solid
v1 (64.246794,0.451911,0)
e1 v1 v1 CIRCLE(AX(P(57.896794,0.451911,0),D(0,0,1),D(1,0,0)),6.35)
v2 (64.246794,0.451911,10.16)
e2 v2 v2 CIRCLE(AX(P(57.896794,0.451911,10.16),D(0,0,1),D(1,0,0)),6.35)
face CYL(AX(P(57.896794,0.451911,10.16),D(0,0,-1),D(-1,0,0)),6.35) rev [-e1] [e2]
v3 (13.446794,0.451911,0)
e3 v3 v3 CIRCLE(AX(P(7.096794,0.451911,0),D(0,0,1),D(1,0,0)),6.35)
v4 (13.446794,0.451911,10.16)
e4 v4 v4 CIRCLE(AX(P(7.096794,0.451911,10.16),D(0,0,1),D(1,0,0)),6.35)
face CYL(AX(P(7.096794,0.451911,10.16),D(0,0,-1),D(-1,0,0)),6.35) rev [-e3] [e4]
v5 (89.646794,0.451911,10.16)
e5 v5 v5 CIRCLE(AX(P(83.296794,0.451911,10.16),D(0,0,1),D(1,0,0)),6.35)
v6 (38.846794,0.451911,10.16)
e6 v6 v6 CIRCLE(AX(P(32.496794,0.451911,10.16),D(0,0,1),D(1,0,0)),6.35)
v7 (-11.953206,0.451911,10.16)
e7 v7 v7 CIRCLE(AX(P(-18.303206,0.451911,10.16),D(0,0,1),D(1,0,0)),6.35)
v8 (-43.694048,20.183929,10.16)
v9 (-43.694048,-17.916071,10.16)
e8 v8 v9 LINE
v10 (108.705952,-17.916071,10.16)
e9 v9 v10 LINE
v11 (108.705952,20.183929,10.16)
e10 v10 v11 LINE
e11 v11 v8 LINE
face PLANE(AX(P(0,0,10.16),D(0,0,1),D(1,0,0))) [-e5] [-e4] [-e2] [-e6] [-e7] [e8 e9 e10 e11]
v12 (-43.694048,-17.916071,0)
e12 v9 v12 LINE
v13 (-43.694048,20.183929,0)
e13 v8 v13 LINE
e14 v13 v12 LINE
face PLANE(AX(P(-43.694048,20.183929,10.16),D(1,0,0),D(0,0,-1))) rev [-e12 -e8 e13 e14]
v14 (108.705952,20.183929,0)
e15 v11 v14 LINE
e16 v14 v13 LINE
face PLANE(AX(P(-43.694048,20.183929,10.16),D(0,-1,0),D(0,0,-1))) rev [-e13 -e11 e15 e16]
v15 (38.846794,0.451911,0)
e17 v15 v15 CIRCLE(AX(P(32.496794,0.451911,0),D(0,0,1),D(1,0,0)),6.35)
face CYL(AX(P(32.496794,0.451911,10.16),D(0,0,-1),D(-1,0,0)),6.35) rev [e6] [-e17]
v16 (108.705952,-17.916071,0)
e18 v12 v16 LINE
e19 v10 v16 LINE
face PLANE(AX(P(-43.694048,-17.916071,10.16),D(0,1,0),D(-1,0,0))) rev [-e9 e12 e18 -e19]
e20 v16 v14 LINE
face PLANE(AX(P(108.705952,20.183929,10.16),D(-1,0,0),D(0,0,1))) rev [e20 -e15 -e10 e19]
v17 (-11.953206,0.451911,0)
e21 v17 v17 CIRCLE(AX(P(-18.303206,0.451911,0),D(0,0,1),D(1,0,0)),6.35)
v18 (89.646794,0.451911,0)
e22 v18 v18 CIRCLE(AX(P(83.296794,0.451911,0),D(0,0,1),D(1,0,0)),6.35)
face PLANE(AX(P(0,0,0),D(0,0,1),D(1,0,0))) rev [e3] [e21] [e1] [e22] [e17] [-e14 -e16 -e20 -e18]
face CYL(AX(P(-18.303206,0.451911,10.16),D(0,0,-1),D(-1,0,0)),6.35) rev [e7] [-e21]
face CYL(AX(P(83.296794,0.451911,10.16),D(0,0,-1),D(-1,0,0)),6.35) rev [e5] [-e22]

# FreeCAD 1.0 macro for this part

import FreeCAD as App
import Part
import Sketcher
from FreeCAD import Vector
Q = App.Units.Quantity


def add_polygon(sketch, points):
    """Adds a closed chain of lines whose ends are joined by coincident constraints."""
    first, n = sketch.GeometryCount, len(points)
    for a, b in zip(points, points[1:] + points[:1]):
        sketch.addGeometry(Part.LineSegment(App.Vector(*a, 0), App.Vector(*b, 0)), False)
    for i in range(n):
        sketch.addConstraint(Sketcher.Constraint("Coincident", first + i, 2, first + (i + 1) % n, 1))

doc = App.newDocument("Part")
body = doc.addObject("PartDesign::Body", "Body")

# Sketch on XY plane
sketch1 = body.newObject("Sketcher::SketchObject", "Sketch")
sketch1.AttachmentSupport = (doc.getObject("XY_Plane"), [""])
sketch1.MapMode = "FlatFace"
add_polygon(sketch1, [(-44, 20), (-44, -18), (109, -18), (109, 20)])  # lines 0-3
sketch1.addGeometry(Part.Circle(Vector(-18, 0, 0), Vector(0, 0, 1), 6), False)  # 4
sketch1.addGeometry(Part.Circle(Vector(7, 0, 0), Vector(0, 0, 1), 6), False)  # 5
sketch1.addGeometry(Part.Circle(Vector(32, 0, 0), Vector(0, 0, 1), 6), False)  # 6
sketch1.addGeometry(Part.Circle(Vector(58, 0, 0), Vector(0, 0, 1), 6), False)  # 7
sketch1.addGeometry(Part.Circle(Vector(83, 0, 0), Vector(0, 0, 1), 6), False)  # 8
sketch1.addConstraint([
    Sketcher.Constraint("Vertical", 0),
    Sketcher.Constraint("Horizontal", 1),
    Sketcher.Constraint("Vertical", 2),
    Sketcher.Constraint("Horizontal", 3),
    Sketcher.Constraint("Equal", 4, 5),
    Sketcher.Constraint("Equal", 5, 6),
    Sketcher.Constraint("Equal", 6, 7),
    Sketcher.Constraint("Equal", 7, 8),
    Sketcher.Constraint("Horizontal", 4, 3, 5, 3),
    Sketcher.Constraint("Horizontal", 5, 3, 6, 3),
    Sketcher.Constraint("Horizontal", 6, 3, 7, 3),
    Sketcher.Constraint("Horizontal", 7, 3, 8, 3),
    Sketcher.Constraint("Diameter", 4, Q("0.5 in")),
    Sketcher.Constraint("DistanceX", 1, 1, 1, 2, Q("6 in")),
    Sketcher.Constraint("DistanceY", 0, 2, 0, 1, Q("1.5 in")),
    Sketcher.Constraint("DistanceX", 4, 3, 5, 3, Q("1 in")),
    Sketcher.Constraint("DistanceX", 5, 3, 6, 3, Q("1 in")),
    Sketcher.Constraint("DistanceX", 6, 3, 7, 3, Q("1 in")),
    Sketcher.Constraint("DistanceX", 7, 3, 8, 3, Q("1 in")),
    Sketcher.Constraint("DistanceY", -1, 1, 4, 3, Q("0.451911 mm")),
    Sketcher.Constraint("DistanceY", 0, 2, -1, 1, Q("17.916071 mm")),
    Sketcher.Constraint("DistanceX", 0, 2, 4, 3, Q("25.390842 mm")),
    Sketcher.Constraint("DistanceX", 4, 3, -1, 1, Q("18.303206 mm")),
])
pad1 = body.newObject("PartDesign::Pad", "Pad")
pad1.Profile = sketch1
pad1.Length = Q("0.4 in")

doc.recompute()
